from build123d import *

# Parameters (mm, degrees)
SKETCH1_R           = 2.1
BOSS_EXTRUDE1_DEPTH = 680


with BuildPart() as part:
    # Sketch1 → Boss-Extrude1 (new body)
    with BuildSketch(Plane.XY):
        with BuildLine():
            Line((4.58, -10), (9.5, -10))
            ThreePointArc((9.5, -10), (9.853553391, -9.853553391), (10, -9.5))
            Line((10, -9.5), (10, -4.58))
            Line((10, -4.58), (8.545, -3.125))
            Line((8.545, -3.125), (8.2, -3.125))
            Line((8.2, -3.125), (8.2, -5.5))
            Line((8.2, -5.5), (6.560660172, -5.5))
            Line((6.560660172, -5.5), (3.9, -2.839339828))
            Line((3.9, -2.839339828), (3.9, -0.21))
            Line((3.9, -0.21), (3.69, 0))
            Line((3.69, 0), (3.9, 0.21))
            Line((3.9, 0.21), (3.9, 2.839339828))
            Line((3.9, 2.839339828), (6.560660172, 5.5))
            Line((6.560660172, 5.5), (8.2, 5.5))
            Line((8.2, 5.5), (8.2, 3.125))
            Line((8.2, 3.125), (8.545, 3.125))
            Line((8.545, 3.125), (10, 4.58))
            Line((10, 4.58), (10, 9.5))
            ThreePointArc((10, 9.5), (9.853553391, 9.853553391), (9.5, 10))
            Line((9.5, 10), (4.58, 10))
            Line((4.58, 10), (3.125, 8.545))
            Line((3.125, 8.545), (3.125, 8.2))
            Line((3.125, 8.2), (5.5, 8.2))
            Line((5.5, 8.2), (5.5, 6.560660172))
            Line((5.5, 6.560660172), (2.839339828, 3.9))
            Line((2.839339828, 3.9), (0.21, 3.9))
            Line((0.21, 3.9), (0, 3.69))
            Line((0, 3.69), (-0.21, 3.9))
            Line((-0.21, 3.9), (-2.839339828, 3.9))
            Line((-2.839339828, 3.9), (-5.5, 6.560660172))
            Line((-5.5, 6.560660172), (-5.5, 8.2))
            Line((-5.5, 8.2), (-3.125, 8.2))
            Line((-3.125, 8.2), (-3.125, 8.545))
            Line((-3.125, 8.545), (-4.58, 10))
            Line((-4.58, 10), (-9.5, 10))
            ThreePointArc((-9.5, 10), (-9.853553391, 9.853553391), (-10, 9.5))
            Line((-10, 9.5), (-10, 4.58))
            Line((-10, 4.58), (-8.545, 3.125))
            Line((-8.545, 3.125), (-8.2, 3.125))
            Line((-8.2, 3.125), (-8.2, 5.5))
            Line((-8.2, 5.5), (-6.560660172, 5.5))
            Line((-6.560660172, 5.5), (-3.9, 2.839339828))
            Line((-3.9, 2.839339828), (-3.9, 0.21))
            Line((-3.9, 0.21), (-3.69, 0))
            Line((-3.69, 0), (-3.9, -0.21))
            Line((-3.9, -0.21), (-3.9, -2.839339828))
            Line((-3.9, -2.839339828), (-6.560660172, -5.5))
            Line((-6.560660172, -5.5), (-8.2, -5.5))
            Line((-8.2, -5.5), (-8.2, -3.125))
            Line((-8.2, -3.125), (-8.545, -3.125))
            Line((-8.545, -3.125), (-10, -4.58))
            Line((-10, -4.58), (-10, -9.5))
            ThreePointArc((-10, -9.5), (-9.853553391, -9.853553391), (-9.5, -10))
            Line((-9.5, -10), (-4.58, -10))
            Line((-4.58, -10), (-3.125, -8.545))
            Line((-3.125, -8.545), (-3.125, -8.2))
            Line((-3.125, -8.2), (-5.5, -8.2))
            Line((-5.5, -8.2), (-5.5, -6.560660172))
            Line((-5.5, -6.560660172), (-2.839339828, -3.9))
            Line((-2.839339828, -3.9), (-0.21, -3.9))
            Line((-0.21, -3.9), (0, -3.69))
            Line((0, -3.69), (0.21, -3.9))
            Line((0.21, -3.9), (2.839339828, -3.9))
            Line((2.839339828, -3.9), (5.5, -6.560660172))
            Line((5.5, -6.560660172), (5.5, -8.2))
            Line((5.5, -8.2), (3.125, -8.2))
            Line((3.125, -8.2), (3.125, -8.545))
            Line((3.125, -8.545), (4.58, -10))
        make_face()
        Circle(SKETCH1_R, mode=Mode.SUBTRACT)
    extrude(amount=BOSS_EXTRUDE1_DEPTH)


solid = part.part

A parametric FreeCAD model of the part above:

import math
import FreeCAD as App
import Part
import Sketcher
from FreeCAD import Vector
Q = App.Units.Quantity

doc = App.newDocument("Part")
body = doc.addObject("PartDesign::Body", "Body")

sketch1 = body.newObject("Sketcher::SketchObject", "Sketch")
sketch1.AttachmentSupport = (doc.getObject("XY_Plane"), [""])
sketch1.MapMode = "FlatFace"
sketch1.addGeometry(Part.LineSegment(Vector(4.58, -10, 0), Vector(9.5, -10, 0)), False)
sketch1.addGeometry(Part.ArcOfCircle(Part.Circle(Vector(9.5, -9.5, 0), Vector(0, 0, 1), 0.5), math.radians(-90), math.radians(0)), False)
sketch1.addGeometry(Part.LineSegment(Vector(10, -9.5, 0), Vector(10, -4.58, 0)), False)
sketch1.addGeometry(Part.LineSegment(Vector(10, -4.58, 0), Vector(8.54, -3.12, 0)), False)
sketch1.addGeometry(Part.LineSegment(Vector(8.54, -3.12, 0), Vector(8.2, -3.12, 0)), False)
sketch1.addGeometry(Part.LineSegment(Vector(8.2, -3.12, 0), Vector(8.2, -5.5, 0)), False)
sketch1.addGeometry(Part.LineSegment(Vector(8.2, -5.5, 0), Vector(6.56, -5.5, 0)), False)
sketch1.addGeometry(Part.LineSegment(Vector(6.56, -5.5, 0), Vector(3.9, -2.84, 0)), False)
sketch1.addGeometry(Part.LineSegment(Vector(3.9, -2.84, 0), Vector(3.9, -0.21, 0)), False)
sketch1.addGeometry(Part.LineSegment(Vector(3.9, -0.21, 0), Vector(3.69, 0, 0)), False)
sketch1.addGeometry(Part.LineSegment(Vector(3.69, 0, 0), Vector(3.9, 0.21, 0)), False)
sketch1.addGeometry(Part.LineSegment(Vector(3.9, 0.21, 0), Vector(3.9, 2.84, 0)), False)
sketch1.addGeometry(Part.LineSegment(Vector(3.9, 2.84, 0), Vector(6.56, 5.5, 0)), False)
sketch1.addGeometry(Part.LineSegment(Vector(6.56, 5.5, 0), Vector(8.2, 5.5, 0)), False)
sketch1.addGeometry(Part.LineSegment(Vector(8.2, 5.5, 0), Vector(8.2, 3.12, 0)), False)
sketch1.addGeometry(Part.LineSegment(Vector(8.2, 3.12, 0), Vector(8.54, 3.12, 0)), False)
sketch1.addGeometry(Part.LineSegment(Vector(8.54, 3.12, 0), Vector(10, 4.58, 0)), False)
sketch1.addGeometry(Part.LineSegment(Vector(10, 4.58, 0), Vector(10, 9.5, 0)), False)
sketch1.addGeometry(Part.ArcOfCircle(Part.Circle(Vector(9.5, 9.5, 0), Vector(0, 0, 1), 0.5), math.radians(0), math.radians(90)), False)
sketch1.addGeometry(Part.LineSegment(Vector(9.5, 10, 0), Vector(4.58, 10, 0)), False)
sketch1.addGeometry(Part.LineSegment(Vector(4.58, 10, 0), Vector(3.12, 8.54, 0)), False)
sketch1.addGeometry(Part.LineSegment(Vector(3.12, 8.54, 0), Vector(3.12, 8.2, 0)), False)
sketch1.addGeometry(Part.LineSegment(Vector(3.12, 8.2, 0), Vector(5.5, 8.2, 0)), False)
sketch1.addGeometry(Part.LineSegment(Vector(5.5, 8.2, 0), Vector(5.5, 6.56, 0)), False)
sketch1.addGeometry(Part.LineSegment(Vector(5.5, 6.56, 0), Vector(2.84, 3.9, 0)), False)
sketch1.addGeometry(Part.LineSegment(Vector(2.84, 3.9, 0), Vector(0.21, 3.9, 0)), False)
sketch1.addGeometry(Part.LineSegment(Vector(0.21, 3.9, 0), Vector(0, 3.69, 0)), False)
sketch1.addGeometry(Part.LineSegment(Vector(0, 3.69, 0), Vector(-0.21, 3.9, 0)), False)
sketch1.addGeometry(Part.LineSegment(Vector(-0.21, 3.9, 0), Vector(-2.84, 3.9, 0)), False)
sketch1.addGeometry(Part.LineSegment(Vector(-2.84, 3.9, 0), Vector(-5.5, 6.56, 0)), False)
sketch1.addGeometry(Part.LineSegment(Vector(-5.5, 6.56, 0), Vector(-5.5, 8.2, 0)), False)
sketch1.addGeometry(Part.LineSegment(Vector(-5.5, 8.2, 0), Vector(-3.12, 8.2, 0)), False)
sketch1.addGeometry(Part.LineSegment(Vector(-3.12, 8.2, 0), Vector(-3.12, 8.54, 0)), False)
sketch1.addGeometry(Part.LineSegment(Vector(-3.12, 8.54, 0), Vector(-4.58, 10, 0)), False)
sketch1.addGeometry(Part.LineSegment(Vector(-4.58, 10, 0), Vector(-9.5, 10, 0)), False)
sketch1.addGeometry(Part.ArcOfCircle(Part.Circle(Vector(-9.5, 9.5, 0), Vector(0, 0, 1), 0.5), math.radians(90), math.radians(180)), False)
sketch1.addGeometry(Part.LineSegment(Vector(-10, 9.5, 0), Vector(-10, 4.58, 0)), False)
sketch1.addGeometry(Part.LineSegment(Vector(-10, 4.58, 0), Vector(-8.54, 3.12, 0)), False)
sketch1.addGeometry(Part.LineSegment(Vector(-8.54, 3.12, 0), Vector(-8.2, 3.12, 0)), False)
sketch1.addGeometry(Part.LineSegment(Vector(-8.2, 3.12, 0), Vector(-8.2, 5.5, 0)), False)
sketch1.addGeometry(Part.LineSegment(Vector(-8.2, 5.5, 0), Vector(-6.56, 5.5, 0)), False)
sketch1.addGeometry(Part.LineSegment(Vector(-6.56, 5.5, 0), Vector(-3.9, 2.84, 0)), False)
sketch1.addGeometry(Part.LineSegment(Vector(-3.9, 2.84, 0), Vector(-3.9, 0.21, 0)), False)
sketch1.addGeometry(Part.LineSegment(Vector(-3.9, 0.21, 0), Vector(-3.69, 0, 0)), False)
sketch1.addGeometry(Part.LineSegment(Vector(-3.69, 0, 0), Vector(-3.9, -0.21, 0)), False)
sketch1.addGeometry(Part.LineSegment(Vector(-3.9, -0.21, 0), Vector(-3.9, -2.84, 0)), False)
sketch1.addGeometry(Part.LineSegment(Vector(-3.9, -2.84, 0), Vector(-6.56, -5.5, 0)), False)
sketch1.addGeometry(Part.LineSegment(Vector(-6.56, -5.5, 0), Vector(-8.2, -5.5, 0)), False)
sketch1.addGeometry(Part.LineSegment(Vector(-8.2, -5.5, 0), Vector(-8.2, -3.12, 0)), False)
sketch1.addGeometry(Part.LineSegment(Vector(-8.2, -3.12, 0), Vector(-8.54, -3.12, 0)), False)
sketch1.addGeometry(Part.LineSegment(Vector(-8.54, -3.12, 0), Vector(-10, -4.58, 0)), False)
sketch1.addGeometry(Part.LineSegment(Vector(-10, -4.58, 0), Vector(-10, -9.5, 0)), False)
sketch1.addGeometry(Part.ArcOfCircle(Part.Circle(Vector(-9.5, -9.5, 0), Vector(0, 0, 1), 0.5), math.radians(180), math.radians(270)), False)
sketch1.addGeometry(Part.LineSegment(Vector(-9.5, -10, 0), Vector(-4.58, -10, 0)), False)
sketch1.addGeometry(Part.LineSegment(Vector(-4.58, -10, 0), Vector(-3.12, -8.54, 0)), False)
sketch1.addGeometry(Part.LineSegment(Vector(-3.12, -8.54, 0), Vector(-3.12, -8.2, 0)), False)
sketch1.addGeometry(Part.LineSegment(Vector(-3.12, -8.2, 0), Vector(-5.5, -8.2, 0)), False)
sketch1.addGeometry(Part.LineSegment(Vector(-5.5, -8.2, 0), Vector(-5.5, -6.56, 0)), False)
sketch1.addGeometry(Part.LineSegment(Vector(-5.5, -6.56, 0), Vector(-2.84, -3.9, 0)), False)
sketch1.addGeometry(Part.LineSegment(Vector(-2.84, -3.9, 0), Vector(-0.21, -3.9, 0)), False)
sketch1.addGeometry(Part.LineSegment(Vector(-0.21, -3.9, 0), Vector(0, -3.69, 0)), False)
sketch1.addGeometry(Part.LineSegment(Vector(0, -3.69, 0), Vector(0.21, -3.9, 0)), False)
sketch1.addGeometry(Part.LineSegment(Vector(0.21, -3.9, 0), Vector(2.84, -3.9, 0)), False)
sketch1.addGeometry(Part.LineSegment(Vector(2.84, -3.9, 0), Vector(5.5, -6.56, 0)), False)
sketch1.addGeometry(Part.LineSegment(Vector(5.5, -6.56, 0), Vector(5.5, -8.2, 0)), False)
sketch1.addGeometry(Part.LineSegment(Vector(5.5, -8.2, 0), Vector(3.12, -8.2, 0)), False)
sketch1.addGeometry(Part.LineSegment(Vector(3.12, -8.2, 0), Vector(3.12, -8.54, 0)), False)
sketch1.addGeometry(Part.LineSegment(Vector(3.12, -8.54, 0), Vector(4.58, -10, 0)), False)
sketch1.addGeometry(Part.Circle(Vector(0, 0, 0), Vector(0, 0, 1), 2.1), False)
sketch1.addConstraint(Sketcher.Constraint("Tangent", 0, 2, 1, 1))
sketch1.addConstraint(Sketcher.Constraint("Tangent", 1, 2, 2, 1))
sketch1.addConstraint(Sketcher.Constraint("Coincident", 2, 2, 3, 1))
sketch1.addConstraint(Sketcher.Constraint("Coincident", 3, 2, 4, 1))
sketch1.addConstraint(Sketcher.Constraint("Coincident", 4, 2, 5, 1))
sketch1.addConstraint(Sketcher.Constraint("Coincident", 5, 2, 6, 1))
sketch1.addConstraint(Sketcher.Constraint("Coincident", 6, 2, 7, 1))
sketch1.addConstraint(Sketcher.Constraint("Coincident", 7, 2, 8, 1))
sketch1.addConstraint(Sketcher.Constraint("Coincident", 8, 2, 9, 1))
sketch1.addConstraint(Sketcher.Constraint("Coincident", 9, 2, 10, 1))
sketch1.addConstraint(Sketcher.Constraint("Coincident", 10, 2, 11, 1))
sketch1.addConstraint(Sketcher.Constraint("Coincident", 11, 2, 12, 1))
sketch1.addConstraint(Sketcher.Constraint("Coincident", 12, 2, 13, 1))
sketch1.addConstraint(Sketcher.Constraint("Coincident", 13, 2, 14, 1))
sketch1.addConstraint(Sketcher.Constraint("Coincident", 14, 2, 15, 1))
sketch1.addConstraint(Sketcher.Constraint("Coincident", 15, 2, 16, 1))
sketch1.addConstraint(Sketcher.Constraint("Coincident", 16, 2, 17, 1))
sketch1.addConstraint(Sketcher.Constraint("Tangent", 17, 2, 18, 1))
sketch1.addConstraint(Sketcher.Constraint("Tangent", 18, 2, 19, 1))
sketch1.addConstraint(Sketcher.Constraint("Coincident", 19, 2, 20, 1))
sketch1.addConstraint(Sketcher.Constraint("Coincident", 20, 2, 21, 1))
sketch1.addConstraint(Sketcher.Constraint("Coincident", 21, 2, 22, 1))
sketch1.addConstraint(Sketcher.Constraint("Coincident", 22, 2, 23, 1))
sketch1.addConstraint(Sketcher.Constraint("Coincident", 23, 2, 24, 1))
sketch1.addConstraint(Sketcher.Constraint("Coincident", 24, 2, 25, 1))
sketch1.addConstraint(Sketcher.Constraint("Coincident", 25, 2, 26, 1))
sketch1.addConstraint(Sketcher.Constraint("Coincident", 26, 2, 27, 1))
sketch1.addConstraint(Sketcher.Constraint("Coincident", 27, 2, 28, 1))
sketch1.addConstraint(Sketcher.Constraint("Coincident", 28, 2, 29, 1))
sketch1.addConstraint(Sketcher.Constraint("Coincident", 29, 2, 30, 1))
sketch1.addConstraint(Sketcher.Constraint("Coincident", 30, 2, 31, 1))
sketch1.addConstraint(Sketcher.Constraint("Coincident", 31, 2, 32, 1))
sketch1.addConstraint(Sketcher.Constraint("Coincident", 32, 2, 33, 1))
sketch1.addConstraint(Sketcher.Constraint("Coincident", 33, 2, 34, 1))
sketch1.addConstraint(Sketcher.Constraint("Tangent", 34, 2, 35, 1))
sketch1.addConstraint(Sketcher.Constraint("Tangent", 35, 2, 36, 1))
sketch1.addConstraint(Sketcher.Constraint("Coincident", 36, 2, 37, 1))
sketch1.addConstraint(Sketcher.Constraint("Coincident", 37, 2, 38, 1))
sketch1.addConstraint(Sketcher.Constraint("Coincident", 38, 2, 39, 1))
sketch1.addConstraint(Sketcher.Constraint("Coincident", 39, 2, 40, 1))
sketch1.addConstraint(Sketcher.Constraint("Coincident", 40, 2, 41, 1))
sketch1.addConstraint(Sketcher.Constraint("Coincident", 41, 2, 42, 1))
sketch1.addConstraint(Sketcher.Constraint("Coincident", 42, 2, 43, 1))
sketch1.addConstraint(Sketcher.Constraint("Coincident", 43, 2, 44, 1))
sketch1.addConstraint(Sketcher.Constraint("Coincident", 44, 2, 45, 1))
sketch1.addConstraint(Sketcher.Constraint("Coincident", 45, 2, 46, 1))
sketch1.addConstraint(Sketcher.Constraint("Coincident", 46, 2, 47, 1))
sketch1.addConstraint(Sketcher.Constraint("Coincident", 47, 2, 48, 1))
sketch1.addConstraint(Sketcher.Constraint("Coincident", 48, 2, 49, 1))
sketch1.addConstraint(Sketcher.Constraint("Coincident", 49, 2, 50, 1))
sketch1.addConstraint(Sketcher.Constraint("Coincident", 50, 2, 51, 1))
sketch1.addConstraint(Sketcher.Constraint("Tangent", 51, 2, 52, 1))
sketch1.addConstraint(Sketcher.Constraint("Tangent", 52, 2, 53, 1))
sketch1.addConstraint(Sketcher.Constraint("Coincident", 53, 2, 54, 1))
sketch1.addConstraint(Sketcher.Constraint("Coincident", 54, 2, 55, 1))
sketch1.addConstraint(Sketcher.Constraint("Coincident", 55, 2, 56, 1))
sketch1.addConstraint(Sketcher.Constraint("Coincident", 56, 2, 57, 1))
sketch1.addConstraint(Sketcher.Constraint("Coincident", 57, 2, 58, 1))
sketch1.addConstraint(Sketcher.Constraint("Coincident", 58, 2, 59, 1))
sketch1.addConstraint(Sketcher.Constraint("Coincident", 59, 2, 60, 1))
sketch1.addConstraint(Sketcher.Constraint("Coincident", 60, 2, 61, 1))
sketch1.addConstraint(Sketcher.Constraint("Coincident", 61, 2, 62, 1))
sketch1.addConstraint(Sketcher.Constraint("Coincident", 62, 2, 63, 1))
sketch1.addConstraint(Sketcher.Constraint("Coincident", 63, 2, 64, 1))
sketch1.addConstraint(Sketcher.Constraint("Coincident", 64, 2, 65, 1))
sketch1.addConstraint(Sketcher.Constraint("Coincident", 65, 2, 66, 1))
sketch1.addConstraint(Sketcher.Constraint("Coincident", 66, 2, 67, 1))
sketch1.addConstraint(Sketcher.Constraint("Coincident", 67, 2, 0, 1))
sketch1.addConstraint(Sketcher.Constraint("Horizontal", 0))
sketch1.addConstraint(Sketcher.Constraint("Vertical", 2))
sketch1.addConstraint(Sketcher.Constraint("Horizontal", 4))
sketch1.addConstraint(Sketcher.Constraint("Vertical", 5))
sketch1.addConstraint(Sketcher.Constraint("Horizontal", 6))
sketch1.addConstraint(Sketcher.Constraint("Vertical", 8))
sketch1.addConstraint(Sketcher.Constraint("Vertical", 11))
sketch1.addConstraint(Sketcher.Constraint("Horizontal", 13))
sketch1.addConstraint(Sketcher.Constraint("Vertical", 14))
sketch1.addConstraint(Sketcher.Constraint("Horizontal", 15))
sketch1.addConstraint(Sketcher.Constraint("Vertical", 17))
sketch1.addConstraint(Sketcher.Constraint("Horizontal", 19))
sketch1.addConstraint(Sketcher.Constraint("Vertical", 21))
sketch1.addConstraint(Sketcher.Constraint("Horizontal", 22))
sketch1.addConstraint(Sketcher.Constraint("Vertical", 23))
sketch1.addConstraint(Sketcher.Constraint("Horizontal", 25))
sketch1.addConstraint(Sketcher.Constraint("Horizontal", 28))
sketch1.addConstraint(Sketcher.Constraint("Vertical", 30))
sketch1.addConstraint(Sketcher.Constraint("Horizontal", 31))
sketch1.addConstraint(Sketcher.Constraint("Vertical", 32))
sketch1.addConstraint(Sketcher.Constraint("Horizontal", 34))
sketch1.addConstraint(Sketcher.Constraint("Vertical", 36))
sketch1.addConstraint(Sketcher.Constraint("Horizontal", 38))
sketch1.addConstraint(Sketcher.Constraint("Vertical", 39))
sketch1.addConstraint(Sketcher.Constraint("Horizontal", 40))
sketch1.addConstraint(Sketcher.Constraint("Vertical", 42))
sketch1.addConstraint(Sketcher.Constraint("Vertical", 45))
sketch1.addConstraint(Sketcher.Constraint("Horizontal", 47))
sketch1.addConstraint(Sketcher.Constraint("Vertical", 48))
sketch1.addConstraint(Sketcher.Constraint("Horizontal", 49))
sketch1.addConstraint(Sketcher.Constraint("Vertical", 51))
sketch1.addConstraint(Sketcher.Constraint("Horizontal", 53))
sketch1.addConstraint(Sketcher.Constraint("Vertical", 55))
sketch1.addConstraint(Sketcher.Constraint("Horizontal", 56))
sketch1.addConstraint(Sketcher.Constraint("Vertical", 57))
sketch1.addConstraint(Sketcher.Constraint("Horizontal", 59))
sketch1.addConstraint(Sketcher.Constraint("Horizontal", 62))
sketch1.addConstraint(Sketcher.Constraint("Vertical", 64))
sketch1.addConstraint(Sketcher.Constraint("Horizontal", 65))
sketch1.addConstraint(Sketcher.Constraint("Vertical", 66))
sketch1.addConstraint(Sketcher.Constraint("Coincident", 68, 3, -1, 1))
sketch1.addConstraint(Sketcher.Constraint("Equal", 1, 18))
sketch1.addConstraint(Sketcher.Constraint("Equal", 18, 35))
sketch1.addConstraint(Sketcher.Constraint("Equal", 35, 52))
sketch1.addConstraint(Sketcher.Constraint("Symmetric", 1, 3, 35, 3, -1, 1))
sketch1.addConstraint(Sketcher.Constraint("Symmetric", 18, 3, 52, 3, -1, 1))
sketch1.addConstraint(Sketcher.Constraint("Symmetric", 3, 2, 37, 2, -1, 1))
sketch1.addConstraint(Sketcher.Constraint("Symmetric", 5, 2, 39, 2, -1, 1))
sketch1.addConstraint(Sketcher.Constraint("Symmetric", 7, 2, 41, 2, -1, 1))
sketch1.addConstraint(Sketcher.Constraint("Symmetric", 9, 2, 43, 2, -1, 1))
sketch1.addConstraint(Sketcher.Constraint("Symmetric", 10, 2, 44, 2, -1, 1))
sketch1.addConstraint(Sketcher.Constraint("Symmetric", 12, 2, 46, 2, -1, 1))
sketch1.addConstraint(Sketcher.Constraint("Symmetric", 14, 2, 48, 2, -1, 1))
sketch1.addConstraint(Sketcher.Constraint("Symmetric", 20, 2, 54, 2, -1, 1))
sketch1.addConstraint(Sketcher.Constraint("Symmetric", 22, 2, 56, 2, -1, 1))
sketch1.addConstraint(Sketcher.Constraint("Symmetric", 24, 2, 58, 2, -1, 1))
sketch1.addConstraint(Sketcher.Constraint("Symmetric", 26, 2, 60, 2, -1, 1))
sketch1.addConstraint(Sketcher.Constraint("Symmetric", 27, 2, 61, 2, -1, 1))
sketch1.addConstraint(Sketcher.Constraint("Symmetric", 29, 2, 63, 2, -1, 1))
sketch1.addConstraint(Sketcher.Constraint("Symmetric", 31, 2, 65, 2, -1, 1))
sketch1.addConstraint(Sketcher.Constraint("Symmetric", 18, 3, 35, 3, -2))
sketch1.addConstraint(Sketcher.Constraint("Symmetric", 25, 2, 27, 2, -2))
sketch1.addConstraint(Sketcher.Constraint("Symmetric", 23, 2, 29, 2, -2))
sketch1.addConstraint(Sketcher.Constraint("Symmetric", 21, 2, 31, 2, -2))
sketch1.addConstraint(Sketcher.Constraint("Symmetric", 15, 2, 37, 2, -2))
sketch1.addConstraint(Sketcher.Constraint("Symmetric", 13, 2, 39, 2, -2))
sketch1.addConstraint(Sketcher.Constraint("Symmetric", 11, 2, 41, 2, -2))
sketch1.addConstraint(Sketcher.Constraint("PointOnObject", 9, 2, -1))
sketch1.addConstraint(Sketcher.Constraint("PointOnObject", 26, 2, -2))
sketch1.addConstraint(Sketcher.Constraint("Parallel", 3, 7))
sketch1.addConstraint(Sketcher.Constraint("Parallel", 7, 9))
sketch1.addConstraint(Sketcher.Constraint("Perpendicular", 9, 10))
sketch1.addConstraint(Sketcher.Constraint("Parallel", 10, 12))
sketch1.addConstraint(Sketcher.Constraint("Parallel", 12, 16))
sketch1.addConstraint(Sketcher.Constraint("Parallel", 16, 20))
sketch1.addConstraint(Sketcher.Constraint("Parallel", 20, 24))
sketch1.addConstraint(Sketcher.Constraint("Parallel", 24, 26))
sketch1.addConstraint(Sketcher.Constraint("Perpendicular", 26, 27))
sketch1.addConstraint(Sketcher.Constraint("Parallel", 27, 29))
sketch1.addConstraint(Sketcher.Constraint("Parallel", 29, 33))
sketch1.addConstraint(Sketcher.Constraint("Parallel", 33, 37))
sketch1.addConstraint(Sketcher.Constraint("Parallel", 37, 41))
sketch1.addConstraint(Sketcher.Constraint("Parallel", 41, 43))
sketch1.addConstraint(Sketcher.Constraint("Parallel", 44, 46))
sketch1.addConstraint(Sketcher.Constraint("Parallel", 46, 50))
sketch1.addConstraint(Sketcher.Constraint("Parallel", 50, 54))
sketch1.addConstraint(Sketcher.Constraint("Parallel", 54, 58))
sketch1.addConstraint(Sketcher.Constraint("Parallel", 58, 60))
sketch1.addConstraint(Sketcher.Constraint("Parallel", 61, 63))
sketch1.addConstraint(Sketcher.Constraint("Parallel", 63, 67))
sketch1.addConstraint(Sketcher.Constraint("Horizontal", 20, 2, 32, 2))
sketch1.addConstraint(Sketcher.Constraint("Horizontal", 2, 2, 50, 2))
sketch1.addConstraint(Sketcher.Constraint("Horizontal", 54, 2, 66, 2))
sketch1.addConstraint(Sketcher.Constraint("Equal", 53, 2))
sketch1.addConstraint(Sketcher.Constraint("Equal", 65, 5))
sketch1.addConstraint(Sketcher.Constraint("Equal", 62, 8))
sketch1.addConstraint(Sketcher.Constraint("Equal", 49, 21))
sketch1.addConstraint(Sketcher.Constraint("Equal", 47, 23))
sketch1.addConstraint(Sketcher.Constraint("Equal", 16, 20))
sketch1.addConstraint(Sketcher.Constraint("Equal", 12, 24))
sketch1.addConstraint(Sketcher.Constraint("Equal", 10, 26))
sketch1.addConstraint(Sketcher.Constraint("Diameter", 68, Q("4.2 mm")))
sketch1.addConstraint(Sketcher.Constraint("Radius", 1, Q("0.5 mm")))
sketch1.addConstraint(Sketcher.Constraint("DistanceY", 0, 2, -1, 1, Q("10 mm")))
sketch1.addConstraint(Sketcher.Constraint("DistanceX", 0, 1, 0, 2, Q("4.92 mm")))
sketch1.addConstraint(Sketcher.Constraint("DistanceX", -1, 1, 4, 2, Q("8.2 mm")))
sketch1.addConstraint(Sketcher.Constraint("DistanceY", 5, 2, -1, 1, Q("5.5 mm")))
sketch1.addConstraint(Sketcher.Constraint("DistanceX", -1, 1, 7, 2, Q("3.9 mm")))
sketch1.addConstraint(Sketcher.Constraint("DistanceX", 4, 2, 4, 1, Q("0.345 mm")))
sketch1.addConstraint(Sketcher.Constraint("DistanceY", 8, 2, -1, 1, Q("0.21 mm")))
sketch1.addConstraint(Sketcher.Constraint("DistanceX", 6, 2, 6, 1, Q("1.63934 mm")))
pad1 = body.newObject("PartDesign::Pad", "Pad")
pad1.Profile = sketch1
pad1.Length = 680

doc.recompute()
